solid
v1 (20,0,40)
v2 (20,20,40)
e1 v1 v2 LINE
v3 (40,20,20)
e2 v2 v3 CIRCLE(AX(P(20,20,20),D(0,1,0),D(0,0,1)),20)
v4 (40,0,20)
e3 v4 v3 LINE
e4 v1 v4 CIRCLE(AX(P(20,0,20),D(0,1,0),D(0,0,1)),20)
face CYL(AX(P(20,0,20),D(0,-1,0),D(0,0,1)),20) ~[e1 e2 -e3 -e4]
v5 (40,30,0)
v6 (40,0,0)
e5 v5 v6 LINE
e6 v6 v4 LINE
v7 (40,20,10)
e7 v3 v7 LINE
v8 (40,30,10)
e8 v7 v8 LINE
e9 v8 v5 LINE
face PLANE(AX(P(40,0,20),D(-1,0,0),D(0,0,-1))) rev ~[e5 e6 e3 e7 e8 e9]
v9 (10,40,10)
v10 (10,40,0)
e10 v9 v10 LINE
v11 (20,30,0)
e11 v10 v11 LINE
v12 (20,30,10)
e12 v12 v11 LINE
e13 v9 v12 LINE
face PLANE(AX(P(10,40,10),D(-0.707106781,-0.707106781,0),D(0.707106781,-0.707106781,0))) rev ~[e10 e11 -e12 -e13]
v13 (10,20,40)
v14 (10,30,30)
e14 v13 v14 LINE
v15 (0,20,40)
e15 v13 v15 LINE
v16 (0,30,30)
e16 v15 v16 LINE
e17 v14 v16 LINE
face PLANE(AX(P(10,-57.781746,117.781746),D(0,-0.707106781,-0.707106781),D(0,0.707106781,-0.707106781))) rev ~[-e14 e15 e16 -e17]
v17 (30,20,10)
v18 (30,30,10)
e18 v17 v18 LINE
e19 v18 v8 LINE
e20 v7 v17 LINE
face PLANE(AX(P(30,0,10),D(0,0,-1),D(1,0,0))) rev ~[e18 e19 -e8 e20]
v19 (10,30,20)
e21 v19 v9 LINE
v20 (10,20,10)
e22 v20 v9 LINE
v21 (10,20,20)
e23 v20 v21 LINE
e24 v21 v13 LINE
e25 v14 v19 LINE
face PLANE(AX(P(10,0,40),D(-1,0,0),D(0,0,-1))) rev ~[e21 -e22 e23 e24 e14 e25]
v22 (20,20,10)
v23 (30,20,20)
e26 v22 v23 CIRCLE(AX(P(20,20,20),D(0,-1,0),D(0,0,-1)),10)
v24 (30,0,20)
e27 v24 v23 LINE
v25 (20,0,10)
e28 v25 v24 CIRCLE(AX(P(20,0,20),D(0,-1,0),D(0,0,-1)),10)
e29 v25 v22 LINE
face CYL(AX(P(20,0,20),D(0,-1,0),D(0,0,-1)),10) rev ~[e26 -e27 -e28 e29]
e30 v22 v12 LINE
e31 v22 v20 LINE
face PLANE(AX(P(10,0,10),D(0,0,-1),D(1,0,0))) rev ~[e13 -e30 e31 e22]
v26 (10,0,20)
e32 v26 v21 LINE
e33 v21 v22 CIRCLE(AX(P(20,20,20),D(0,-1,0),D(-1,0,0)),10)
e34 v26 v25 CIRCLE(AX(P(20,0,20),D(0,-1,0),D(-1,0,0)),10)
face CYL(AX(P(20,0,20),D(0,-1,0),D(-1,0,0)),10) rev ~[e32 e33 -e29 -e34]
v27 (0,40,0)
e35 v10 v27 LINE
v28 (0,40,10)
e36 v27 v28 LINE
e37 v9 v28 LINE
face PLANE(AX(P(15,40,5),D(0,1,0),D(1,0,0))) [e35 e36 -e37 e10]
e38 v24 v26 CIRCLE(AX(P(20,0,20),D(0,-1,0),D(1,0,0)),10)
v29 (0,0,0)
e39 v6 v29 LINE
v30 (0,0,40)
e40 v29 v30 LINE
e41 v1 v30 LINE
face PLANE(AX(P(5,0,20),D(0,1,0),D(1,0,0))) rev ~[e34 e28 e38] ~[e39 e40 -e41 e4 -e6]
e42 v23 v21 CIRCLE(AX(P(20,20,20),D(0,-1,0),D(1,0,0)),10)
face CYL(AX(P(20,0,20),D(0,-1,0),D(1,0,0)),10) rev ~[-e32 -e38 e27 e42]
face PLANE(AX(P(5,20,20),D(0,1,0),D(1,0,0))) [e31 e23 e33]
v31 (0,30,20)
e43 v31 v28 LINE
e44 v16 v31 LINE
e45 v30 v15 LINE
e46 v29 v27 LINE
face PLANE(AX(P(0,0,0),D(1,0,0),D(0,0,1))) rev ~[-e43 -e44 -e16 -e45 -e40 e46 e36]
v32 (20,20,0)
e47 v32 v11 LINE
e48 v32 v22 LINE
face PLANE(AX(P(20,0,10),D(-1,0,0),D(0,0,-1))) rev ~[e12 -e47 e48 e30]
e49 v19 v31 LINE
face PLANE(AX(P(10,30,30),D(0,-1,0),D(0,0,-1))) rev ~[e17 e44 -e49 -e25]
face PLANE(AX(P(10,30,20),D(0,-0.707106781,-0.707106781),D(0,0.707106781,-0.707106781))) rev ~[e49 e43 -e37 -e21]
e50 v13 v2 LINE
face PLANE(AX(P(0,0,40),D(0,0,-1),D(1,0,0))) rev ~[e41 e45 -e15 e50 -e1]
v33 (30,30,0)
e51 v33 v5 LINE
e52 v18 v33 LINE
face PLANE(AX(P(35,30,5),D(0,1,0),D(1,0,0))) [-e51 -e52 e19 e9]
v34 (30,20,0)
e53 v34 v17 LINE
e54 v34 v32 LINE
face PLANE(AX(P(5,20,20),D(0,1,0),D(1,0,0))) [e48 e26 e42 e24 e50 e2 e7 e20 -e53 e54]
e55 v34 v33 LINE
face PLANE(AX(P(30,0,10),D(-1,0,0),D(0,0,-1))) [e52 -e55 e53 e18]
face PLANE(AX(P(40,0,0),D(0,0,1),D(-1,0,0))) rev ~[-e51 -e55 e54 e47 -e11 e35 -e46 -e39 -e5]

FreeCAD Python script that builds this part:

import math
import FreeCAD as App
import Part
import Sketcher

V = App.Vector
Q = App.Units.Quantity


def add_polygon(sketch, points):
    """Adds a closed chain of lines whose ends are joined by coincident constraints."""
    first, n = sketch.GeometryCount, len(points)
    for a, b in zip(points, points[1:] + points[:1]):
        sketch.addGeometry(Part.LineSegment(App.Vector(*a, 0), App.Vector(*b, 0)), False)
    for i in range(n):
        sketch.addConstraint(Sketcher.Constraint("Coincident", first + i, 2, first + (i + 1) % n, 1))

doc = App.newDocument("Part")
params = doc.addObject("Spreadsheet::Sheet", "Params")
for row, (alias, value) in enumerate([
    ("sketch1_radius", "20 mm"),
    ("sketch1_radius2", "10 mm"),
    ("sketch1_width", "20 mm"),
    ("pad1_length", "20 mm"),
    ("sketch2_width", "10 mm"),
    ("pad2_length", "30 mm"),
    ("sketch3_width", "10 mm"),
    ("sketch3_height", "40 mm"),
    ("pad3_length", "40 mm"),
    ("sketch4_width", "10 mm"),
    ("sketch5_height", "10 mm"),
    ("sketch5_length", "220 mm"),
], start=1):
    params.set(f"A{row}", alias)
    params.set(f"B{row}", "=" + value)
    params.setAlias(f"B{row}", alias)

body = doc.addObject("PartDesign::Body", "Body")

# Sketch on XZ plane
sketch1 = doc.addObject("Sketcher::SketchObject", "Sketch")
body.addObject(sketch1)
sketch1.AttachmentSupport = (doc.XZ_Plane, [""])
sketch1.MapMode = "FlatFace"
sketch1.addGeometry(Part.LineSegment(V(0, 0, 0), V(0, 40, 0)), False)
sketch1.addGeometry(Part.LineSegment(V(0, 40, 0), V(20, 40, 0)), False)
sketch1.addGeometry(Part.ArcOfCircle(Part.Circle(V(20, 20, 0), V(0, 0, 1), 20), math.radians(0), math.radians(90)), False)
sketch1.addGeometry(Part.LineSegment(V(40, 20, 0), V(40, 0, 0)), False)
sketch1.addGeometry(Part.LineSegment(V(40, 0, 0), V(0, 0, 0)), False)
sketch1.addGeometry(Part.ArcOfCircle(Part.Circle(V(20, 20, 0), V(0, 0, 1), 10), math.radians(-90), math.radians(0)), False)
sketch1.addGeometry(Part.ArcOfCircle(Part.Circle(V(20, 20, 0), V(0, 0, 1), 10), math.radians(0), math.radians(180)), False)
sketch1.addGeometry(Part.ArcOfCircle(Part.Circle(V(20, 20, 0), V(0, 0, 1), 10), math.radians(180), math.radians(270)), False)
sketch1.addConstraint(Sketcher.Constraint("Coincident", 0, 2, 1, 1))
sketch1.addConstraint(Sketcher.Constraint("Tangent", 1, 2, 2, 2))
sketch1.addConstraint(Sketcher.Constraint("Tangent", 2, 1, 3, 1))
sketch1.addConstraint(Sketcher.Constraint("Coincident", 3, 2, 4, 1))
sketch1.addConstraint(Sketcher.Constraint("Coincident", 4, 2, 0, 1))
sketch1.addConstraint(Sketcher.Constraint("Tangent", 5, 2, 6, 1))
sketch1.addConstraint(Sketcher.Constraint("Tangent", 6, 2, 7, 1))
sketch1.addConstraint(Sketcher.Constraint("Tangent", 7, 2, 5, 1))
sketch1.addConstraint(Sketcher.Constraint("Vertical", 0))
sketch1.addConstraint(Sketcher.Constraint("Horizontal", 1))
sketch1.addConstraint(Sketcher.Constraint("Vertical", 3))
sketch1.addConstraint(Sketcher.Constraint("Horizontal", 4))
sketch1.addConstraint(Sketcher.Constraint("Coincident", 4, 2, -1, 1))
sketch1.addConstraint(Sketcher.Constraint("Coincident", 5, 3, 2, 3))
sketch1.addConstraint(Sketcher.Constraint("Horizontal", 2, 1, 5, 2))
sketch1.addConstraint(Sketcher.Constraint("Horizontal", 5, 2, 6, 2))
sketch1.addConstraint(Sketcher.Constraint("Vertical", 1, 2, 7, 2))
sketch1.addConstraint(Sketcher.Constraint("Equal", 4, 0))
sketch1.addConstraint(Sketcher.Constraint("Radius", 2, 20.0))
sketch1.addConstraint(Sketcher.Constraint("Radius", 5, 10.0))
sketch1.addConstraint(Sketcher.Constraint("DistanceX", 1, 1, 1, 2, 20.0))
sketch1.setExpression("Constraints[18]", "Params.sketch1_radius")
sketch1.setExpression("Constraints[19]", "Params.sketch1_radius2")
sketch1.setExpression("Constraints[20]", "Params.sketch1_width")
pad1 = doc.addObject("PartDesign::Pad", "Pad")
body.addObject(pad1)
pad1.Profile = sketch1
pad1.setExpression("Length", "Params.pad1_length")
pad1.Reversed = True

# Sketch on XZ plane
sketch2 = doc.addObject("Sketcher::SketchObject", "Sketch001")
body.addObject(sketch2)
sketch2.AttachmentSupport = (doc.XZ_Plane, [""])
sketch2.MapMode = "FlatFace"
add_polygon(sketch2, [(30, 0), (30, 10), (40, 10), (40, 0)])  # lines 0-3
sketch2.addConstraint(Sketcher.Constraint("Vertical", 0))
sketch2.addConstraint(Sketcher.Constraint("Horizontal", 1))
sketch2.addConstraint(Sketcher.Constraint("Vertical", 2))
sketch2.addConstraint(Sketcher.Constraint("Horizontal", 3))
sketch2.addConstraint(Sketcher.Constraint("PointOnObject", 2, 2, -1))
sketch2.addConstraint(Sketcher.Constraint("Equal", 3, 0))
sketch2.addConstraint(Sketcher.Constraint("DistanceX", 1, 1, 1, 2, 10.0))
sketch2.addConstraint(Sketcher.Constraint("DistanceX", -1, 1, 0, 2, 30.0))
sketch2.setExpression("Constraints[10]", "Params.sketch2_width")
pad2 = doc.addObject("PartDesign::Pad", "Pad001")
body.addObject(pad2)
pad2.Profile = sketch2
pad2.setExpression("Length", "Params.pad2_length")
pad2.Reversed = True

# Sketch on XZ plane
sketch3 = doc.addObject("Sketcher::SketchObject", "Sketch002")
body.addObject(sketch3)
sketch3.AttachmentSupport = (doc.XZ_Plane, [""])
sketch3.MapMode = "FlatFace"
add_polygon(sketch3, [(10, 10), (20, 10), (20, 0), (0, 0), (0, 40), (10, 40)])  # lines 0-5
sketch3.addConstraint(Sketcher.Constraint("Horizontal", 0))
sketch3.addConstraint(Sketcher.Constraint("Vertical", 1))
sketch3.addConstraint(Sketcher.Constraint("Horizontal", 2))
sketch3.addConstraint(Sketcher.Constraint("Vertical", 3))
sketch3.addConstraint(Sketcher.Constraint("Horizontal", 4))
sketch3.addConstraint(Sketcher.Constraint("Vertical", 5))
sketch3.addConstraint(Sketcher.Constraint("Coincident", 2, 2, -1, 1))
sketch3.addConstraint(Sketcher.Constraint("Equal", 0, 4))
sketch3.addConstraint(Sketcher.Constraint("Equal", 4, 1))
sketch3.addConstraint(Sketcher.Constraint("DistanceX", 0, 1, 0, 2, 10.0))
sketch3.addConstraint(Sketcher.Constraint("DistanceY", 3, 1, 3, 2, 40.0))
sketch3.setExpression("Constraints[15]", "Params.sketch3_width")
sketch3.setExpression("Constraints[16]", "Params.sketch3_height")
pad3 = doc.addObject("PartDesign::Pad", "Pad002")
body.addObject(pad3)
pad3.Profile = sketch3
pad3.setExpression("Length", "Params.pad3_length")
pad3.Reversed = True

# Sketch on XY plane
sketch4 = doc.addObject("Sketcher::SketchObject", "Sketch003")
body.addObject(sketch4)
sketch4.AttachmentSupport = (doc.XY_Plane, [""])
sketch4.MapMode = "FlatFace"
sketch4.AttachmentOffset = App.Placement(V(0, 0, 10), App.Rotation())
add_polygon(sketch4, [(20, 40), (10, 40), (20, 30)])  # lines 0-2
sketch4.addConstraint(Sketcher.Constraint("Horizontal", 0))
sketch4.addConstraint(Sketcher.Constraint("Vertical", 2))
sketch4.addConstraint(Sketcher.Constraint("Equal", 0, 2))
sketch4.addConstraint(Sketcher.Constraint("DistanceX", 0, 2, 0, 1, 10.0))
sketch4.addConstraint(Sketcher.Constraint("DistanceX", -1, 1, 0, 2, 10.0))
sketch4.addConstraint(Sketcher.Constraint("DistanceY", -1, 1, 0, 2, 40.0))
sketch4.setExpression("Constraints[6]", "Params.sketch4_width")
pocket1 = doc.addObject("PartDesign::Pocket", "Pocket")
body.addObject(pocket1)
pocket1.Profile = sketch4
pocket1.Type = "ThroughAll"
pocket1.Midplane = True

# Sketch on YZ plane
sketch5 = doc.addObject("Sketcher::SketchObject", "Sketch004")
body.addObject(sketch5)
sketch5.AttachmentSupport = (doc.YZ_Plane, [""])
sketch5.MapMode = "FlatFace"
sketch5.AttachmentOffset = App.Placement(V(0, 0, 10), App.Rotation())
add_polygon(sketch5, [(-58, 118), (30, 30), (30, 20), (118, -68), (278, 83), (102, 269)])  # lines 0-5
sketch5.addConstraint(Sketcher.Constraint("Vertical", 1))
sketch5.addConstraint(Sketcher.Constraint("Parallel", 0, 2))
sketch5.addConstraint(Sketcher.Constraint("Perpendicular", 3, 4))
sketch5.addConstraint(Sketcher.Constraint("Perpendicular", 4, 5))
sketch5.addConstraint(Sketcher.Constraint("Equal", 0, 2))
sketch5.addConstraint(Sketcher.Constraint("Equal", 3, 5))
sketch5.addConstraint(Sketcher.Constraint("DistanceY", 1, 2, 1, 1, 10.0))
sketch5.addConstraint(Sketcher.Constraint("Angle", 0, Q("-45 deg")))
sketch5.addConstraint(Sketcher.Constraint("Distance", 3, 220.0))
sketch5.addConstraint(Sketcher.Constraint("DistanceX", -1, 1, 0, 2, 30.0))
sketch5.addConstraint(Sketcher.Constraint("DistanceY", -1, 1, 0, 2, 30.0))
sketch5.addConstraint(Sketcher.Constraint("DistanceX", -1, 1, 3, 2, 277.591701))
sketch5.setExpression("Constraints[12]", "Params.sketch5_height")
sketch5.setExpression("Constraints[14]", "Params.sketch5_length")
pocket2 = doc.addObject("PartDesign::Pocket", "Pocket001")
body.addObject(pocket2)
pocket2.Profile = sketch5
pocket2.Type = "ThroughAll"
pocket2.Midplane = True

doc.recompute()
